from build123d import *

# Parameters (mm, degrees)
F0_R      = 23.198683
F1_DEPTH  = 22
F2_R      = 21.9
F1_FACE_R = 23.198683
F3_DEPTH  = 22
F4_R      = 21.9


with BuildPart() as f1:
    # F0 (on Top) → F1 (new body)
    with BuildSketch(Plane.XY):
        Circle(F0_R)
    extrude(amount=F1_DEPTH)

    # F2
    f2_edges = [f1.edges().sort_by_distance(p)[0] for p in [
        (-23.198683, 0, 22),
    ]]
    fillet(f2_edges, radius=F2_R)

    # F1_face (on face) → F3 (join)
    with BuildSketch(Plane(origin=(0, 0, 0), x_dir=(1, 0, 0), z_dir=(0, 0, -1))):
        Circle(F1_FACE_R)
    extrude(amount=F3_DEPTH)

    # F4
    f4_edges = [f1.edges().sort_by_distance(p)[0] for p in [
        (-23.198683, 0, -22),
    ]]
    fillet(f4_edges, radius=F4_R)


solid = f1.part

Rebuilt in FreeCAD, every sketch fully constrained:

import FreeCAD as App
import Part
import Sketcher


def edges_at(feature, points):
    """Names of the edges that pass closest to the given points."""
    edges = feature.Shape.Edges
    near = lambda p: min(range(len(edges)), key=lambda i: edges[i].distToShape(Part.Vertex(*p))[0])
    return sorted({f"Edge{near(p) + 1}" for p in points})

doc = App.newDocument("Part")
body = doc.addObject("PartDesign::Body", "Body")

# Sketch on XY plane
sketch1 = body.newObject("Sketcher::SketchObject", "Sketch")
sketch1.AttachmentSupport = (doc.getObject("XY_Plane"), [""])
sketch1.MapMode = "FlatFace"
sketch1.addGeometry(Part.Circle(App.Vector(0, 0, 0), App.Vector(0, 0, 1), 23), False)
sketch1.addConstraint([
    Sketcher.Constraint("Coincident", 0, 3, -1, 1),
    Sketcher.Constraint("Diameter", 0, 46.397366),
])
pad1 = body.newObject("PartDesign::Pad", "Pad")
pad1.Profile = sketch1
pad1.Length = 22
doc.recompute()

fillet = body.newObject("PartDesign::Fillet", "Fillet")
fillet.Base = (pad1, edges_at(pad1, [(-23.199, 0, 22)]))
fillet.Radius = 21.9

# Sketch on XY plane
sketch2 = body.newObject("Sketcher::SketchObject", "Sketch001")
sketch2.AttachmentSupport = (doc.getObject("XY_Plane"), [""])
sketch2.MapMode = "FlatFace"
sketch2.addGeometry(Part.Circle(App.Vector(0, 0, 0), App.Vector(0, 0, 1), 23), False)
sketch2.addConstraint([
    Sketcher.Constraint("Coincident", 0, 3, -1, 1),
    Sketcher.Constraint("Diameter", 0, 46.397366),
])
pad2 = body.newObject("PartDesign::Pad", "Pad001")
pad2.Profile = sketch2
pad2.Length = 22
pad2.Reversed = True
doc.recompute()

fillet2 = body.newObject("PartDesign::Fillet", "Fillet001")
fillet2.Base = (pad2, edges_at(pad2, [(-23.199, 0, -22)]))
fillet2.Radius = 21.9

doc.recompute()
